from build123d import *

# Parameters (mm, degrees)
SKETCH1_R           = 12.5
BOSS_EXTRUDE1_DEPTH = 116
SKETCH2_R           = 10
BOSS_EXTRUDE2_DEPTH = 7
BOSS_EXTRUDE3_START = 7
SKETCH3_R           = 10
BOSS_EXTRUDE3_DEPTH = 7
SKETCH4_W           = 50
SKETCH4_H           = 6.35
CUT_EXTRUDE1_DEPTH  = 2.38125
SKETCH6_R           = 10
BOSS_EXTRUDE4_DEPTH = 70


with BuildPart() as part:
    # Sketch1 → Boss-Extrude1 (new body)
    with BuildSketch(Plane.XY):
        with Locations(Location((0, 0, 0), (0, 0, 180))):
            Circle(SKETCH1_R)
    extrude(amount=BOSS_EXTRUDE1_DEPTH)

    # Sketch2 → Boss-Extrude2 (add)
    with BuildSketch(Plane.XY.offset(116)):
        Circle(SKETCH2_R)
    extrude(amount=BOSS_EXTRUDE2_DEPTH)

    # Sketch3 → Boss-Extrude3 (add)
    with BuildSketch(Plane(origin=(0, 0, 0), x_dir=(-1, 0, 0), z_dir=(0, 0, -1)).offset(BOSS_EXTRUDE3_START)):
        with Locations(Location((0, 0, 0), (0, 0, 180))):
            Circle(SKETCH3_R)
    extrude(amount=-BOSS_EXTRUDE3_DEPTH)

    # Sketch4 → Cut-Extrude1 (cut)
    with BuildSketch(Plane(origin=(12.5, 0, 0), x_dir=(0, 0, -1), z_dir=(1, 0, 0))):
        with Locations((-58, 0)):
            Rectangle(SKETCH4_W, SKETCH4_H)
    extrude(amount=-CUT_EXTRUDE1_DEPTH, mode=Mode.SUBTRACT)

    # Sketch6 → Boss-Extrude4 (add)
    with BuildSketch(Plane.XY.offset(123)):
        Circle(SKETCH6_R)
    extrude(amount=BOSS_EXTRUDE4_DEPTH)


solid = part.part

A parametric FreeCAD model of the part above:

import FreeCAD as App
import Part
import Sketcher

V = App.Vector
Q = App.Units.Quantity


def add_polygon(sketch, points):
    """Adds a closed chain of lines whose ends are joined by coincident constraints."""
    first, n = sketch.GeometryCount, len(points)
    for a, b in zip(points, points[1:] + points[:1]):
        sketch.addGeometry(Part.LineSegment(App.Vector(*a, 0), App.Vector(*b, 0)), False)
    for i in range(n):
        sketch.addConstraint(Sketcher.Constraint("Coincident", first + i, 2, first + (i + 1) % n, 1))

doc = App.newDocument("Part")
body = doc.addObject("PartDesign::Body", "Body")

# Sketch on XY plane
sketch1 = body.newObject("Sketcher::SketchObject", "Sketch")
sketch1.AttachmentSupport = (doc.getObject("XY_Plane"), [""])
sketch1.MapMode = "FlatFace"
sketch1.addGeometry(Part.Circle(V(0, 0, 0), V(0, 0, 1), 12.5), False)
sketch1.addConstraint([
    Sketcher.Constraint("Coincident", 0, 3, -1, 1),
    Sketcher.Constraint("Diameter", 0, Q("25 mm")),
])
pad1 = body.newObject("PartDesign::Pad", "Pad")
pad1.Profile = sketch1
pad1.Length = 116

# Sketch on XY plane
sketch2 = body.newObject("Sketcher::SketchObject", "Sketch001")
sketch2.AttachmentSupport = (doc.getObject("XY_Plane"), [""])
sketch2.MapMode = "FlatFace"
sketch2.AttachmentOffset = App.Placement(V(0, 0, 116), App.Rotation())
sketch2.addGeometry(Part.Circle(V(0, 0, 0), V(0, 0, 1), 10), False)
sketch2.addConstraint([
    Sketcher.Constraint("Coincident", 0, 3, -1, 1),
    Sketcher.Constraint("Diameter", 0, Q("20 mm")),
])
pad2 = body.newObject("PartDesign::Pad", "Pad001")
pad2.Profile = sketch2
pad2.Length = 7

# Sketch on XY plane
sketch3 = body.newObject("Sketcher::SketchObject", "Sketch002")
sketch3.AttachmentSupport = (doc.getObject("XY_Plane"), [""])
sketch3.MapMode = "FlatFace"
sketch3.AttachmentOffset = App.Placement(V(0, 0, -7), App.Rotation())
sketch3.addGeometry(Part.Circle(V(0, 0, 0), V(0, 0, 1), 10), False)
sketch3.addConstraint([
    Sketcher.Constraint("Coincident", 0, 3, -1, 1),
    Sketcher.Constraint("Diameter", 0, Q("20 mm")),
])
pad3 = body.newObject("PartDesign::Pad", "Pad002")
pad3.Profile = sketch3
pad3.Length = 7

# Sketch on YZ plane
sketch4 = body.newObject("Sketcher::SketchObject", "Sketch003")
sketch4.AttachmentSupport = (doc.getObject("YZ_Plane"), [""])
sketch4.MapMode = "FlatFace"
sketch4.AttachmentOffset = App.Placement(V(0, 0, 12.5), App.Rotation())
add_polygon(sketch4, [(3.175, 83), (-3.175, 83), (-3.175, 33), (3.175, 33)])  # lines 0-3
sketch4.addConstraint([
    Sketcher.Constraint("Horizontal", 0),
    Sketcher.Constraint("Vertical", 1),
    Sketcher.Constraint("Horizontal", 2),
    Sketcher.Constraint("Vertical", 3),
    Sketcher.Constraint("DistanceY", 1, 2, 1, 1, Q("50 mm")),
    Sketcher.Constraint("DistanceY", -1, 1, 0, 2, Q("83 mm")),
    Sketcher.Constraint("DistanceX", 0, 2, 0, 1, Q("6.35 mm")),
    Sketcher.Constraint("DistanceX", 0, 2, -1, 1, Q("3.175 mm")),
])
pocket1 = body.newObject("PartDesign::Pocket", "Pocket")
pocket1.Profile = sketch4
pocket1.Length = 2.38125

# Sketch on XY plane
sketch5 = body.newObject("Sketcher::SketchObject", "Sketch004")
sketch5.AttachmentSupport = (doc.getObject("XY_Plane"), [""])
sketch5.MapMode = "FlatFace"
sketch5.AttachmentOffset = App.Placement(V(0, 0, 123), App.Rotation())
sketch5.addGeometry(Part.Circle(V(0, 0, 0), V(0, 0, 1), 10), False)
sketch5.addConstraint([
    Sketcher.Constraint("Coincident", 0, 3, -1, 1),
    Sketcher.Constraint("Diameter", 0, Q("20 mm")),
])
pad4 = body.newObject("PartDesign::Pad", "Pad003")
pad4.Profile = sketch5
pad4.Length = 70

doc.recompute()
